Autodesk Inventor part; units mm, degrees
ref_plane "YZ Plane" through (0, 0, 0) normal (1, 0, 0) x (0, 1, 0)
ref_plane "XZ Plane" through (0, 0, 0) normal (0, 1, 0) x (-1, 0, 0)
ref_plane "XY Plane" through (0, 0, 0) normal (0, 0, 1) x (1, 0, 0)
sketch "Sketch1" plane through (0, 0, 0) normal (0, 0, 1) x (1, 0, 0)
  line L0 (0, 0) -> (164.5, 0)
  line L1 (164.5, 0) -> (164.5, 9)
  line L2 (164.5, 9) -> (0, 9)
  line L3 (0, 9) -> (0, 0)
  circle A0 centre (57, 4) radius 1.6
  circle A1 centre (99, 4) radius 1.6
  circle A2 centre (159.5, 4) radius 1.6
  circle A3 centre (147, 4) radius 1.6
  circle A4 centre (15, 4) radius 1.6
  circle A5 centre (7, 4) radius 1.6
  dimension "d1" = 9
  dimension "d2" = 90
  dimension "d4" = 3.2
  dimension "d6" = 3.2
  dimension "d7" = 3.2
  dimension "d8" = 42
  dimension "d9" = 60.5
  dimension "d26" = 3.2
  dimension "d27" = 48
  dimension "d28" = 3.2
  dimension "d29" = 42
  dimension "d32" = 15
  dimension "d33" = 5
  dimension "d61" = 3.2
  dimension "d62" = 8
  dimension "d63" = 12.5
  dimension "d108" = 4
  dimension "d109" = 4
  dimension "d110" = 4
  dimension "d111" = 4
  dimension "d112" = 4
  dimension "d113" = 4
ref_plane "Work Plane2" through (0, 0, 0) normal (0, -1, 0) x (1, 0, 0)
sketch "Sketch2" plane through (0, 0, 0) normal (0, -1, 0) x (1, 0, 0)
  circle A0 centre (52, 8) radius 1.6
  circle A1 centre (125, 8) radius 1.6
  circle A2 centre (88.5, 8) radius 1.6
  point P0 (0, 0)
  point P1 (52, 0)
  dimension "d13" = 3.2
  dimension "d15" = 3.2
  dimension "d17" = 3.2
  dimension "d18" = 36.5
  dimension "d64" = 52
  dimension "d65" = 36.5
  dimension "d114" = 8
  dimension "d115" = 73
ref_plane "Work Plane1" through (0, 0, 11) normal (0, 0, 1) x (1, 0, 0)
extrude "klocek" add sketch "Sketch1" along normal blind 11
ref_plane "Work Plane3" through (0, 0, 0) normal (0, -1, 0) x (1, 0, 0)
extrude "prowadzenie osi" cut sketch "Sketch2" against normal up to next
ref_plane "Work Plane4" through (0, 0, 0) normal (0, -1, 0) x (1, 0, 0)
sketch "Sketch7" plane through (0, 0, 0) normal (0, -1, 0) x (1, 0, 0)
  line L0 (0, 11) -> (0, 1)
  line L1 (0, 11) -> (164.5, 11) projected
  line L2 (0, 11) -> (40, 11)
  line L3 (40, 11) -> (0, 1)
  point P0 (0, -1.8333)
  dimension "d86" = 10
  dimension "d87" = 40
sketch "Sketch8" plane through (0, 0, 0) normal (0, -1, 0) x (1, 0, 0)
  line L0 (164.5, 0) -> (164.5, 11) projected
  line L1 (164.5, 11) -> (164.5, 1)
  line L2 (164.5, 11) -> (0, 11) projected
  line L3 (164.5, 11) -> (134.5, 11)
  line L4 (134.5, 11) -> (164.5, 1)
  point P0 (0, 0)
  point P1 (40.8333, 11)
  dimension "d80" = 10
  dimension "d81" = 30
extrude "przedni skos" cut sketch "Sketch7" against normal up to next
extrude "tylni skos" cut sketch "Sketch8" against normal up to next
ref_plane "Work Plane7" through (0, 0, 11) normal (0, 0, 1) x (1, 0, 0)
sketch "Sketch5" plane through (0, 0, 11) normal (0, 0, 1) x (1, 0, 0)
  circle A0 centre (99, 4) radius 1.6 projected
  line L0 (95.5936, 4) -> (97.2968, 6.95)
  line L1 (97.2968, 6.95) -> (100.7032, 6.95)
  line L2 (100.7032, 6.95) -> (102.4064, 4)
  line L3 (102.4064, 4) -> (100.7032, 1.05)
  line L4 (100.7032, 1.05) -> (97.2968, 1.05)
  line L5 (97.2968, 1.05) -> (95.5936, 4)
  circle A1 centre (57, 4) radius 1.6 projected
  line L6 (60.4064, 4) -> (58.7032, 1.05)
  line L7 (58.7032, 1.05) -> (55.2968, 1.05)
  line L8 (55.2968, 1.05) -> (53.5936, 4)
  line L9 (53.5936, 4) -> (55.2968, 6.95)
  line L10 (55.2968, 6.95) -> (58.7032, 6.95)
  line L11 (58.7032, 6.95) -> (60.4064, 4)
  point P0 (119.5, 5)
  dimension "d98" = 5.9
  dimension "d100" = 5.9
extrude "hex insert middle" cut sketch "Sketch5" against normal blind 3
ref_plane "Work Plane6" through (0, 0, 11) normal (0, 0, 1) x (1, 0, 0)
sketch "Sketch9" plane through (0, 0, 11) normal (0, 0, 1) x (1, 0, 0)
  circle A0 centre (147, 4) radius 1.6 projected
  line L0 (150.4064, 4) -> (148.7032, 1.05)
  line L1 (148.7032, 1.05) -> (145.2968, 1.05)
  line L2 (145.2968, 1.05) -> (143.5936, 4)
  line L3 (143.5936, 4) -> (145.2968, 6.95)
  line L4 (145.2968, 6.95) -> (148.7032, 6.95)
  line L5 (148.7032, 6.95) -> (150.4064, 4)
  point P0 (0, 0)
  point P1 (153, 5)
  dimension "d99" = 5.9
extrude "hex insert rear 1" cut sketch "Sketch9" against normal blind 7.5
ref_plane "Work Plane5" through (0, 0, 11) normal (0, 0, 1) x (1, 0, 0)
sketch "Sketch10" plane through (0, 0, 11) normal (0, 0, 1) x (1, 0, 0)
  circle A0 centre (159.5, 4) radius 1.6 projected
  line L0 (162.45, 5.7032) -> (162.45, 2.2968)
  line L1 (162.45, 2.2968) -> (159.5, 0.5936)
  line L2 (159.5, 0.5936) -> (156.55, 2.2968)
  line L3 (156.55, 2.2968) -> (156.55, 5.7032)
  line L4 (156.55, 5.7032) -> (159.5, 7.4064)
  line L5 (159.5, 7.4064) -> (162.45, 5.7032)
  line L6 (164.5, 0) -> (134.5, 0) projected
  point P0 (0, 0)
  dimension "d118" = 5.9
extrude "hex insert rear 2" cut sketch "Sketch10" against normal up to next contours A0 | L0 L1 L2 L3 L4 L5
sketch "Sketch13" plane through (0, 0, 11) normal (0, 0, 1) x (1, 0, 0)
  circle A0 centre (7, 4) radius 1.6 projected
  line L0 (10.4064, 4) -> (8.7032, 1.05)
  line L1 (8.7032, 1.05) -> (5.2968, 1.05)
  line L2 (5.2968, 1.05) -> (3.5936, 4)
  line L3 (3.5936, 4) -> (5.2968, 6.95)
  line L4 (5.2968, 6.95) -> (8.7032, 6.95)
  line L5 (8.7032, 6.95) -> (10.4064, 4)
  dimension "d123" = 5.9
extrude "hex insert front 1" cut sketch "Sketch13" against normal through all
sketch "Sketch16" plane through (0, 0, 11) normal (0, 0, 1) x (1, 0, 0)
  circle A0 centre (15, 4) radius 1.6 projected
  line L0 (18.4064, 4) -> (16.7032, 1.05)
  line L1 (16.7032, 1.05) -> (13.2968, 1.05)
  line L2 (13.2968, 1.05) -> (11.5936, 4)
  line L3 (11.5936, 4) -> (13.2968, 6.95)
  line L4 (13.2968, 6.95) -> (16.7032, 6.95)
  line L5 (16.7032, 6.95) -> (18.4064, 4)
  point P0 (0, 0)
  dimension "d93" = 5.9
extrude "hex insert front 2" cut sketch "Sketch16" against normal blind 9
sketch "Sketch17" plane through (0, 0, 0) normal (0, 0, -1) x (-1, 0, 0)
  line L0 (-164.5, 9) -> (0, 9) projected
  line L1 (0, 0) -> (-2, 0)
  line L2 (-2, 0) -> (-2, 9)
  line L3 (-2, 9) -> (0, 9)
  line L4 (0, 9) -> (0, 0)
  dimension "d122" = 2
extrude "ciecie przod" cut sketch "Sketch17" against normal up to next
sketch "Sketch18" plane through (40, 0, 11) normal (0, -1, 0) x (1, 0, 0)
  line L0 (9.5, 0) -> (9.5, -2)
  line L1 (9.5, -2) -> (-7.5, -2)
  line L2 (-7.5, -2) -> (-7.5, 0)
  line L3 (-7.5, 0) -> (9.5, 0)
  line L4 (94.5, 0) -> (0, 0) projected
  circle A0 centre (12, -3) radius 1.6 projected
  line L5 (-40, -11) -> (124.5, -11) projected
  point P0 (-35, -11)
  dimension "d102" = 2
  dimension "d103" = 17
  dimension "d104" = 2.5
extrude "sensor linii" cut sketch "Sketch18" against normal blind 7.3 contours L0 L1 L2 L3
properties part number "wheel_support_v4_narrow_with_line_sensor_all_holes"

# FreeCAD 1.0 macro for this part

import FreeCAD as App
import Part
import Sketcher

V = App.Vector
Q = App.Units.Quantity


def add_polygon(sketch, points):
    """Adds a closed chain of lines whose ends are joined by coincident constraints."""
    first, n = sketch.GeometryCount, len(points)
    for a, b in zip(points, points[1:] + points[:1]):
        sketch.addGeometry(Part.LineSegment(App.Vector(*a, 0), App.Vector(*b, 0)), False)
    for i in range(n):
        sketch.addConstraint(Sketcher.Constraint("Coincident", first + i, 2, first + (i + 1) % n, 1))

doc = App.newDocument("Part")
params = doc.addObject("Spreadsheet::Sheet", "Params")
for row, (alias, value) in enumerate([
    ("sketch1_diameter", "3.2 mm"),
    ("sketch1_height", "9 mm"),
    ("pad1_length", "11 mm"),
    ("sketch2_diameter", "3.2 mm"),
    ("sketch3_width", "40 mm"),
    ("sketch3_height", "10 mm"),
    ("sketch4_width", "30 mm"),
    ("sketch4_height", "10 mm"),
    ("sketch5_diameter", "3.2 mm"),
    ("pocket4_length", "3 mm"),
    ("sketch6_diameter", "3.2 mm"),
    ("pocket5_length", "7.5 mm"),
    ("pocket6_length", "11 mm"),
    ("sketch8_diameter", "3.2 mm"),
    ("sketch9_diameter", "3.2 mm"),
    ("pocket8_length", "9 mm"),
    ("sketch10_width", "2 mm"),
    ("sketch10_height", "9 mm"),
    ("sketch11_width", "17 mm"),
    ("sketch11_height", "2 mm"),
    ("pocket10_length", "7.3 mm"),
], start=1):
    params.set(f"A{row}", alias)
    params.set(f"B{row}", "=" + value)
    params.setAlias(f"B{row}", alias)

body = doc.addObject("PartDesign::Body", "Body")

sketch1 = body.newObject("Sketcher::SketchObject", "Sketch")
sketch1.AttachmentSupport = (doc.getObject("XY_Plane"), [""])
sketch1.MapMode = "FlatFace"
add_polygon(sketch1, [(0, 9), (0, 0), (164.5, 0), (164.5, 9)])
sketch1.addGeometry(Part.Circle(V(7, 4, 0), V(0, 0, 1), 1.6), False)
sketch1.addGeometry(Part.Circle(V(15, 4, 0), V(0, 0, 1), 1.6), False)
sketch1.addGeometry(Part.Circle(V(57, 4, 0), V(0, 0, 1), 1.6), False)
sketch1.addGeometry(Part.Circle(V(99, 4, 0), V(0, 0, 1), 1.6), False)
sketch1.addGeometry(Part.Circle(V(147, 4, 0), V(0, 0, 1), 1.6), False)
sketch1.addGeometry(Part.Circle(V(159.5, 4, 0), V(0, 0, 1), 1.6), False)
sketch1.addConstraint([
    Sketcher.Constraint("Vertical", 0),
    Sketcher.Constraint("Horizontal", 1),
    Sketcher.Constraint("Vertical", 2),
    Sketcher.Constraint("Horizontal", 3),
    Sketcher.Constraint("Coincident", 0, 2, -1, 1),
    Sketcher.Constraint("Equal", 4, 5),
    Sketcher.Constraint("Equal", 5, 6),
    Sketcher.Constraint("Equal", 6, 7),
    Sketcher.Constraint("Equal", 7, 8),
    Sketcher.Constraint("Equal", 8, 9),
    Sketcher.Constraint("Horizontal", 4, 3, 5, 3),
    Sketcher.Constraint("Horizontal", 5, 3, 6, 3),
    Sketcher.Constraint("Horizontal", 6, 3, 7, 3),
    Sketcher.Constraint("Horizontal", 7, 3, 8, 3),
    Sketcher.Constraint("Horizontal", 8, 3, 9, 3),
    Sketcher.Constraint("Diameter", 4, Q("3.2 mm")),
    Sketcher.Constraint("DistanceY", 0, 2, 0, 1, Q("9 mm")),
    Sketcher.Constraint("DistanceY", -1, 1, 4, 3, Q("4 mm")),
    Sketcher.Constraint("DistanceX", -1, 1, 5, 3, Q("15 mm")),
    Sketcher.Constraint("DistanceX", 4, 3, 5, 3, Q("8 mm")),
    Sketcher.Constraint("DistanceX", 5, 3, 6, 3, Q("42 mm")),
    Sketcher.Constraint("DistanceX", 6, 3, 7, 3, Q("42 mm")),
    Sketcher.Constraint("DistanceX", 7, 3, 8, 3, Q("48 mm")),
    Sketcher.Constraint("DistanceX", 9, 3, 1, 2, Q("5 mm")),
    Sketcher.Constraint("DistanceX", 8, 3, 9, 3, Q("12.5 mm")),
])
sketch1.setExpression("Constraints[19]", "Params.sketch1_diameter")
sketch1.setExpression("Constraints[20]", "Params.sketch1_height")
pad1 = body.newObject("PartDesign::Pad", "Pad")
pad1.Profile = sketch1
pad1.setExpression("Length", "Params.pad1_length")

sketch2 = body.newObject("Sketcher::SketchObject", "Sketch001")
sketch2.AttachmentSupport = (doc.getObject("XZ_Plane"), [""])
sketch2.MapMode = "FlatFace"
sketch2.addGeometry([
    Part.Circle(V(52, 8, 0), V(0, 0, 1), 1.6),
    Part.Circle(V(125, 8, 0), V(0, 0, 1), 1.6),
    Part.Circle(V(88.5, 8, 0), V(0, 0, 1), 1.6),
], False)
sketch2.addConstraint([
    Sketcher.Constraint("Equal", 0, 1),
    Sketcher.Constraint("Equal", 1, 2),
    Sketcher.Constraint("Horizontal", 0, 3, 1, 3),
    Sketcher.Constraint("Horizontal", 1, 3, 2, 3),
    Sketcher.Constraint("Diameter", 0, Q("3.2 mm")),
    Sketcher.Constraint("DistanceX", -1, 1, 0, 3, Q("52 mm")),
    Sketcher.Constraint("DistanceY", -1, 1, 0, 3, Q("8 mm")),
    Sketcher.Constraint("DistanceX", 0, 3, 1, 3, Q("73 mm")),
    Sketcher.Constraint("DistanceX", 0, 3, 2, 3, Q("36.5 mm")),
])
sketch2.setExpression("Constraints[4]", "Params.sketch2_diameter")
pocket1 = body.newObject("PartDesign::Pocket", "Pocket")
pocket1.Profile = sketch2
pocket1.Type = "UpToFirst"

sketch3 = body.newObject("Sketcher::SketchObject", "Sketch002")
sketch3.AttachmentSupport = (doc.getObject("XZ_Plane"), [""])
sketch3.MapMode = "FlatFace"
add_polygon(sketch3, [(40, 11), (0, 11), (0, 1)])
sketch3.addConstraint([
    Sketcher.Constraint("Horizontal", 0),
    Sketcher.Constraint("Vertical", 1),
    Sketcher.Constraint("PointOnObject", 0, 2, -2),
    Sketcher.Constraint("DistanceX", 0, 2, 0, 1, Q("40 mm")),
    Sketcher.Constraint("DistanceY", 1, 2, 1, 1, Q("10 mm")),
    Sketcher.Constraint("DistanceY", -1, 1, 0, 2, Q("11 mm")),
])
sketch3.setExpression("Constraints[6]", "Params.sketch3_width")
sketch3.setExpression("Constraints[7]", "Params.sketch3_height")
pocket2 = body.newObject("PartDesign::Pocket", "Pocket001")
pocket2.Profile = sketch3
pocket2.Type = "UpToFirst"

sketch4 = body.newObject("Sketcher::SketchObject", "Sketch003")
sketch4.AttachmentSupport = (doc.getObject("XZ_Plane"), [""])
sketch4.MapMode = "FlatFace"
add_polygon(sketch4, [(134, 11), (164, 1), (164, 11)])
sketch4.addConstraint([
    Sketcher.Constraint("Vertical", 1),
    Sketcher.Constraint("Horizontal", 2),
    Sketcher.Constraint("DistanceX", 2, 2, 2, 1, Q("30 mm")),
    Sketcher.Constraint("DistanceY", 1, 1, 1, 2, Q("10 mm")),
    Sketcher.Constraint("DistanceY", -1, 1, 0, 2, Q("1 mm")),
    Sketcher.Constraint("DistanceX", -1, 1, 0, 2, Q("164.5 mm")),
])
sketch4.setExpression("Constraints[5]", "Params.sketch4_width")
sketch4.setExpression("Constraints[6]", "Params.sketch4_height")
pocket3 = body.newObject("PartDesign::Pocket", "Pocket002")
pocket3.Profile = sketch4
pocket3.Type = "UpToFirst"

sketch5 = body.newObject("Sketcher::SketchObject", "Sketch004")
sketch5.AttachmentSupport = (doc.getObject("XY_Plane"), [""])
sketch5.MapMode = "FlatFace"
sketch5.AttachmentOffset = App.Placement(V(0, 0, 11), App.Rotation())
add_polygon(sketch5, [(97.3, 7), (95.6, 4), (97.3, 1.1), (100.7, 1.1), (102.4, 4), (100.7, 7)])
sketch5.addGeometry(Part.Circle(V(99, 4, 0), V(0, 0, 1), 1.6), False)
add_polygon(sketch5, [(58.7, 1.1), (60.4, 4), (58.7, 7), (55.3, 7), (53.6, 4), (55.3, 1.1)])
sketch5.addGeometry(Part.Circle(V(57, 4, 0), V(0, 0, 1), 1.6), False)
sketch5.addConstraint([
    Sketcher.Constraint("Horizontal", 2),
    Sketcher.Constraint("Horizontal", 5),
    Sketcher.Constraint("Horizontal", 9),
    Sketcher.Constraint("Horizontal", 12),
    Sketcher.Constraint("Equal", 6, 13),
    Sketcher.Constraint("Parallel", 0, 3),
    Sketcher.Constraint("Parallel", 1, 4),
    Sketcher.Constraint("Parallel", 3, 7),
    Sketcher.Constraint("Parallel", 4, 8),
    Sketcher.Constraint("Parallel", 7, 10),
    Sketcher.Constraint("Parallel", 8, 11),
    Sketcher.Constraint("Horizontal", 6, 3, 13, 3),
    Sketcher.Constraint("Horizontal", 13, 3, 0, 2),
    Sketcher.Constraint("Horizontal", 0, 2, 3, 2),
    Sketcher.Constraint("Horizontal", 3, 2, 7, 2),
    Sketcher.Constraint("Horizontal", 5, 2, 8, 2),
    Sketcher.Constraint("Horizontal", 7, 2, 10, 2),
    Sketcher.Constraint("Horizontal", 2, 2, 11, 2),
    Sketcher.Constraint("Vertical", 2, 2, 4, 2),
    Sketcher.Constraint("Vertical", 1, 2, 5, 2),
    Sketcher.Constraint("Equal", 5, 9),
    Sketcher.Constraint("Diameter", 6, Q("3.2 mm")),
    Sketcher.Constraint("DistanceY", 2, 2, 4, 2, Q("5.9 mm")),
    Sketcher.Constraint("Angle", 0, Q("-120.0002 deg")),
    Sketcher.Constraint("DistanceX", -1, 1, 6, 3, Q("99 mm")),
    Sketcher.Constraint("DistanceY", -1, 1, 6, 3, Q("4 mm")),
    Sketcher.Constraint("DistanceX", -1, 1, 13, 3, Q("57 mm")),
    Sketcher.Constraint("DistanceX", 9, 2, 5, 2, Q("42 mm")),
    Sketcher.Constraint("DistanceX", 2, 1, 2, 2, Q("3.4064 mm")),
    Sketcher.Constraint("DistanceX", -1, 1, 0, 2, Q("95.5936 mm")),
])
sketch5.setExpression("Constraints[33]", "Params.sketch5_diameter")
pocket4 = body.newObject("PartDesign::Pocket", "Pocket003")
pocket4.Profile = sketch5
pocket4.setExpression("Length", "Params.pocket4_length")

sketch6 = body.newObject("Sketcher::SketchObject", "Sketch005")
sketch6.AttachmentSupport = (doc.getObject("XY_Plane"), [""])
sketch6.MapMode = "FlatFace"
sketch6.AttachmentOffset = App.Placement(V(0, 0, 11), App.Rotation())
add_polygon(sketch6, [(148.7, 1.1), (150.4, 4), (148.7, 7), (145.3, 7), (143.6, 4), (145.3, 1.1)])
sketch6.addGeometry(Part.Circle(V(147, 4, 0), V(0, 0, 1), 1.6), False)
sketch6.addConstraint([
    Sketcher.Constraint("Horizontal", 2),
    Sketcher.Constraint("Horizontal", 5),
    Sketcher.Constraint("Parallel", 0, 3),
    Sketcher.Constraint("Parallel", 1, 4),
    Sketcher.Constraint("Horizontal", 6, 3, 0, 2),
    Sketcher.Constraint("Horizontal", 0, 2, 3, 2),
    Sketcher.Constraint("Vertical", 2, 2, 4, 2),
    Sketcher.Constraint("Vertical", 1, 2, 5, 2),
    Sketcher.Constraint("Diameter", 6, Q("3.2 mm")),
    Sketcher.Constraint("DistanceY", 4, 2, 2, 2, Q("5.9 mm")),
    Sketcher.Constraint("Angle", 0, Q("59.9998 deg")),
    Sketcher.Constraint("DistanceX", -1, 1, 6, 3, Q("147 mm")),
    Sketcher.Constraint("DistanceY", -1, 1, 6, 3, Q("4 mm")),
    Sketcher.Constraint("DistanceX", 2, 2, 2, 1, Q("3.4064 mm")),
    Sketcher.Constraint("DistanceX", -1, 1, 0, 2, Q("150.4064 mm")),
])
sketch6.setExpression("Constraints[14]", "Params.sketch6_diameter")
pocket5 = body.newObject("PartDesign::Pocket", "Pocket004")
pocket5.Profile = sketch6
pocket5.setExpression("Length", "Params.pocket5_length")

sketch7 = body.newObject("Sketcher::SketchObject", "Sketch006")
sketch7.AttachmentSupport = (doc.getObject("XY_Plane"), [""])
sketch7.MapMode = "FlatFace"
sketch7.AttachmentOffset = App.Placement(V(0, 0, 11), App.Rotation())
add_polygon(sketch7, [(162.4, 2.3), (162.4, 5.7), (159.5, 7.4), (156.6, 5.7), (156.6, 2.3), (159.5, 0.6)])
sketch7.addConstraint([
    Sketcher.Constraint("Vertical", 0),
    Sketcher.Constraint("Vertical", 3),
    Sketcher.Constraint("Parallel", 1, 4),
    Sketcher.Constraint("Parallel", 2, 5),
    Sketcher.Constraint("Horizontal", 0, 2, 2, 2),
    Sketcher.Constraint("Horizontal", 3, 2, 5, 2),
    Sketcher.Constraint("Vertical", 1, 2, 4, 2),
    Sketcher.Constraint("DistanceX", 2, 2, 0, 2, Q("5.9 mm")),
    Sketcher.Constraint("Angle", 1, Q("149.9998 deg")),
    Sketcher.Constraint("DistanceX", -1, 1, 1, 2, Q("159.5 mm")),
    Sketcher.Constraint("DistanceY", 0, 1, 0, 2, Q("3.4064 mm")),
    Sketcher.Constraint("DistanceY", -1, 1, 0, 2, Q("5.7032 mm")),
])
pocket6 = body.newObject("PartDesign::Pocket", "Pocket005")
pocket6.Profile = sketch7
pocket6.setExpression("Length", "Params.pocket6_length")

sketch8 = body.newObject("Sketcher::SketchObject", "Sketch007")
sketch8.AttachmentSupport = (doc.getObject("XY_Plane"), [""])
sketch8.MapMode = "FlatFace"
sketch8.AttachmentOffset = App.Placement(V(0, 0, 11), App.Rotation())
add_polygon(sketch8, [(8.7, 1.1), (10.4, 4), (8.7, 7), (5.3, 7), (3.6, 4), (5.3, 1.1)])
sketch8.addGeometry(Part.Circle(V(7, 4, 0), V(0, 0, 1), 1.6), False)
sketch8.addConstraint([
    Sketcher.Constraint("Horizontal", 2),
    Sketcher.Constraint("Horizontal", 5),
    Sketcher.Constraint("Parallel", 0, 3),
    Sketcher.Constraint("Parallel", 1, 4),
    Sketcher.Constraint("Horizontal", 6, 3, 0, 2),
    Sketcher.Constraint("Horizontal", 0, 2, 3, 2),
    Sketcher.Constraint("Vertical", 2, 2, 4, 2),
    Sketcher.Constraint("Vertical", 1, 2, 5, 2),
    Sketcher.Constraint("Diameter", 6, Q("3.2 mm")),
    Sketcher.Constraint("DistanceY", 4, 2, 2, 2, Q("5.9 mm")),
    Sketcher.Constraint("Angle", 0, Q("59.9998 deg")),
    Sketcher.Constraint("DistanceX", -1, 1, 6, 3, Q("7 mm")),
    Sketcher.Constraint("DistanceY", -1, 1, 6, 3, Q("4 mm")),
    Sketcher.Constraint("DistanceX", 2, 2, 2, 1, Q("3.4064 mm")),
    Sketcher.Constraint("DistanceX", -1, 1, 0, 2, Q("10.4064 mm")),
])
sketch8.setExpression("Constraints[14]", "Params.sketch8_diameter")
pocket7 = body.newObject("PartDesign::Pocket", "Pocket006")
pocket7.Profile = sketch8
pocket7.Type = "ThroughAll"

sketch9 = body.newObject("Sketcher::SketchObject", "Sketch008")
sketch9.AttachmentSupport = (doc.getObject("XY_Plane"), [""])
sketch9.MapMode = "FlatFace"
sketch9.AttachmentOffset = App.Placement(V(0, 0, 11), App.Rotation())
add_polygon(sketch9, [(16.7, 1.1), (18.4, 4), (16.7, 7), (13.3, 7), (11.6, 4), (13.3, 1.1)])
sketch9.addGeometry(Part.Circle(V(15, 4, 0), V(0, 0, 1), 1.6), False)
sketch9.addConstraint([
    Sketcher.Constraint("Horizontal", 2),
    Sketcher.Constraint("Horizontal", 5),
    Sketcher.Constraint("Parallel", 0, 3),
    Sketcher.Constraint("Parallel", 1, 4),
    Sketcher.Constraint("Horizontal", 6, 3, 0, 2),
    Sketcher.Constraint("Horizontal", 0, 2, 3, 2),
    Sketcher.Constraint("Vertical", 2, 2, 4, 2),
    Sketcher.Constraint("Vertical", 1, 2, 5, 2),
    Sketcher.Constraint("Diameter", 6, Q("3.2 mm")),
    Sketcher.Constraint("DistanceY", 4, 2, 2, 2, Q("5.9 mm")),
    Sketcher.Constraint("Angle", 0, Q("59.9998 deg")),
    Sketcher.Constraint("DistanceX", -1, 1, 6, 3, Q("15 mm")),
    Sketcher.Constraint("DistanceY", -1, 1, 6, 3, Q("4 mm")),
    Sketcher.Constraint("DistanceX", 2, 2, 2, 1, Q("3.4064 mm")),
    Sketcher.Constraint("DistanceX", -1, 1, 0, 2, Q("18.4064 mm")),
])
sketch9.setExpression("Constraints[14]", "Params.sketch9_diameter")
pocket8 = body.newObject("PartDesign::Pocket", "Pocket007")
pocket8.Profile = sketch9
pocket8.setExpression("Length", "Params.pocket8_length")

sketch10 = body.newObject("Sketcher::SketchObject", "Sketch009")
sketch10.AttachmentSupport = (doc.getObject("XY_Plane"), [""])
sketch10.MapMode = "FlatFace"
add_polygon(sketch10, [(0, 9), (2, 9), (2, 0), (0, 0)])
sketch10.addConstraint([
    Sketcher.Constraint("Horizontal", 0),
    Sketcher.Constraint("Vertical", 1),
    Sketcher.Constraint("Horizontal", 2),
    Sketcher.Constraint("Vertical", 3),
    Sketcher.Constraint("Coincident", 2, 2, -1, 1),
    Sketcher.Constraint("DistanceX", 0, 1, 0, 2, Q("2 mm")),
    Sketcher.Constraint("DistanceY", 1, 2, 1, 1, Q("9 mm")),
])
sketch10.setExpression("Constraints[9]", "Params.sketch10_width")
sketch10.setExpression("Constraints[10]", "Params.sketch10_height")
pocket9 = body.newObject("PartDesign::Pocket", "Pocket008")
pocket9.Profile = sketch10
pocket9.Type = "UpToFirst"
pocket9.Reversed = True

sketch11 = body.newObject("Sketcher::SketchObject", "Sketch010")
sketch11.AttachmentSupport = (doc.getObject("XZ_Plane"), [""])
sketch11.MapMode = "FlatFace"
add_polygon(sketch11, [(49.5, 9), (49.5, 11), (32.5, 11), (32.5, 9)])
sketch11.addConstraint([
    Sketcher.Constraint("Vertical", 0),
    Sketcher.Constraint("Horizontal", 1),
    Sketcher.Constraint("Vertical", 2),
    Sketcher.Constraint("Horizontal", 3),
    Sketcher.Constraint("DistanceX", 1, 2, 1, 1, Q("17 mm")),
    Sketcher.Constraint("DistanceY", 0, 1, 0, 2, Q("2 mm")),
    Sketcher.Constraint("DistanceY", -1, 1, 0, 2, Q("11 mm")),
    Sketcher.Constraint("DistanceX", -1, 1, 0, 2, Q("49.5 mm")),
])
sketch11.setExpression("Constraints[8]", "Params.sketch11_width")
sketch11.setExpression("Constraints[9]", "Params.sketch11_height")
pocket10 = body.newObject("PartDesign::Pocket", "Pocket009")
pocket10.Profile = sketch11
pocket10.setExpression("Length", "Params.pocket10_length")

doc.recompute()
